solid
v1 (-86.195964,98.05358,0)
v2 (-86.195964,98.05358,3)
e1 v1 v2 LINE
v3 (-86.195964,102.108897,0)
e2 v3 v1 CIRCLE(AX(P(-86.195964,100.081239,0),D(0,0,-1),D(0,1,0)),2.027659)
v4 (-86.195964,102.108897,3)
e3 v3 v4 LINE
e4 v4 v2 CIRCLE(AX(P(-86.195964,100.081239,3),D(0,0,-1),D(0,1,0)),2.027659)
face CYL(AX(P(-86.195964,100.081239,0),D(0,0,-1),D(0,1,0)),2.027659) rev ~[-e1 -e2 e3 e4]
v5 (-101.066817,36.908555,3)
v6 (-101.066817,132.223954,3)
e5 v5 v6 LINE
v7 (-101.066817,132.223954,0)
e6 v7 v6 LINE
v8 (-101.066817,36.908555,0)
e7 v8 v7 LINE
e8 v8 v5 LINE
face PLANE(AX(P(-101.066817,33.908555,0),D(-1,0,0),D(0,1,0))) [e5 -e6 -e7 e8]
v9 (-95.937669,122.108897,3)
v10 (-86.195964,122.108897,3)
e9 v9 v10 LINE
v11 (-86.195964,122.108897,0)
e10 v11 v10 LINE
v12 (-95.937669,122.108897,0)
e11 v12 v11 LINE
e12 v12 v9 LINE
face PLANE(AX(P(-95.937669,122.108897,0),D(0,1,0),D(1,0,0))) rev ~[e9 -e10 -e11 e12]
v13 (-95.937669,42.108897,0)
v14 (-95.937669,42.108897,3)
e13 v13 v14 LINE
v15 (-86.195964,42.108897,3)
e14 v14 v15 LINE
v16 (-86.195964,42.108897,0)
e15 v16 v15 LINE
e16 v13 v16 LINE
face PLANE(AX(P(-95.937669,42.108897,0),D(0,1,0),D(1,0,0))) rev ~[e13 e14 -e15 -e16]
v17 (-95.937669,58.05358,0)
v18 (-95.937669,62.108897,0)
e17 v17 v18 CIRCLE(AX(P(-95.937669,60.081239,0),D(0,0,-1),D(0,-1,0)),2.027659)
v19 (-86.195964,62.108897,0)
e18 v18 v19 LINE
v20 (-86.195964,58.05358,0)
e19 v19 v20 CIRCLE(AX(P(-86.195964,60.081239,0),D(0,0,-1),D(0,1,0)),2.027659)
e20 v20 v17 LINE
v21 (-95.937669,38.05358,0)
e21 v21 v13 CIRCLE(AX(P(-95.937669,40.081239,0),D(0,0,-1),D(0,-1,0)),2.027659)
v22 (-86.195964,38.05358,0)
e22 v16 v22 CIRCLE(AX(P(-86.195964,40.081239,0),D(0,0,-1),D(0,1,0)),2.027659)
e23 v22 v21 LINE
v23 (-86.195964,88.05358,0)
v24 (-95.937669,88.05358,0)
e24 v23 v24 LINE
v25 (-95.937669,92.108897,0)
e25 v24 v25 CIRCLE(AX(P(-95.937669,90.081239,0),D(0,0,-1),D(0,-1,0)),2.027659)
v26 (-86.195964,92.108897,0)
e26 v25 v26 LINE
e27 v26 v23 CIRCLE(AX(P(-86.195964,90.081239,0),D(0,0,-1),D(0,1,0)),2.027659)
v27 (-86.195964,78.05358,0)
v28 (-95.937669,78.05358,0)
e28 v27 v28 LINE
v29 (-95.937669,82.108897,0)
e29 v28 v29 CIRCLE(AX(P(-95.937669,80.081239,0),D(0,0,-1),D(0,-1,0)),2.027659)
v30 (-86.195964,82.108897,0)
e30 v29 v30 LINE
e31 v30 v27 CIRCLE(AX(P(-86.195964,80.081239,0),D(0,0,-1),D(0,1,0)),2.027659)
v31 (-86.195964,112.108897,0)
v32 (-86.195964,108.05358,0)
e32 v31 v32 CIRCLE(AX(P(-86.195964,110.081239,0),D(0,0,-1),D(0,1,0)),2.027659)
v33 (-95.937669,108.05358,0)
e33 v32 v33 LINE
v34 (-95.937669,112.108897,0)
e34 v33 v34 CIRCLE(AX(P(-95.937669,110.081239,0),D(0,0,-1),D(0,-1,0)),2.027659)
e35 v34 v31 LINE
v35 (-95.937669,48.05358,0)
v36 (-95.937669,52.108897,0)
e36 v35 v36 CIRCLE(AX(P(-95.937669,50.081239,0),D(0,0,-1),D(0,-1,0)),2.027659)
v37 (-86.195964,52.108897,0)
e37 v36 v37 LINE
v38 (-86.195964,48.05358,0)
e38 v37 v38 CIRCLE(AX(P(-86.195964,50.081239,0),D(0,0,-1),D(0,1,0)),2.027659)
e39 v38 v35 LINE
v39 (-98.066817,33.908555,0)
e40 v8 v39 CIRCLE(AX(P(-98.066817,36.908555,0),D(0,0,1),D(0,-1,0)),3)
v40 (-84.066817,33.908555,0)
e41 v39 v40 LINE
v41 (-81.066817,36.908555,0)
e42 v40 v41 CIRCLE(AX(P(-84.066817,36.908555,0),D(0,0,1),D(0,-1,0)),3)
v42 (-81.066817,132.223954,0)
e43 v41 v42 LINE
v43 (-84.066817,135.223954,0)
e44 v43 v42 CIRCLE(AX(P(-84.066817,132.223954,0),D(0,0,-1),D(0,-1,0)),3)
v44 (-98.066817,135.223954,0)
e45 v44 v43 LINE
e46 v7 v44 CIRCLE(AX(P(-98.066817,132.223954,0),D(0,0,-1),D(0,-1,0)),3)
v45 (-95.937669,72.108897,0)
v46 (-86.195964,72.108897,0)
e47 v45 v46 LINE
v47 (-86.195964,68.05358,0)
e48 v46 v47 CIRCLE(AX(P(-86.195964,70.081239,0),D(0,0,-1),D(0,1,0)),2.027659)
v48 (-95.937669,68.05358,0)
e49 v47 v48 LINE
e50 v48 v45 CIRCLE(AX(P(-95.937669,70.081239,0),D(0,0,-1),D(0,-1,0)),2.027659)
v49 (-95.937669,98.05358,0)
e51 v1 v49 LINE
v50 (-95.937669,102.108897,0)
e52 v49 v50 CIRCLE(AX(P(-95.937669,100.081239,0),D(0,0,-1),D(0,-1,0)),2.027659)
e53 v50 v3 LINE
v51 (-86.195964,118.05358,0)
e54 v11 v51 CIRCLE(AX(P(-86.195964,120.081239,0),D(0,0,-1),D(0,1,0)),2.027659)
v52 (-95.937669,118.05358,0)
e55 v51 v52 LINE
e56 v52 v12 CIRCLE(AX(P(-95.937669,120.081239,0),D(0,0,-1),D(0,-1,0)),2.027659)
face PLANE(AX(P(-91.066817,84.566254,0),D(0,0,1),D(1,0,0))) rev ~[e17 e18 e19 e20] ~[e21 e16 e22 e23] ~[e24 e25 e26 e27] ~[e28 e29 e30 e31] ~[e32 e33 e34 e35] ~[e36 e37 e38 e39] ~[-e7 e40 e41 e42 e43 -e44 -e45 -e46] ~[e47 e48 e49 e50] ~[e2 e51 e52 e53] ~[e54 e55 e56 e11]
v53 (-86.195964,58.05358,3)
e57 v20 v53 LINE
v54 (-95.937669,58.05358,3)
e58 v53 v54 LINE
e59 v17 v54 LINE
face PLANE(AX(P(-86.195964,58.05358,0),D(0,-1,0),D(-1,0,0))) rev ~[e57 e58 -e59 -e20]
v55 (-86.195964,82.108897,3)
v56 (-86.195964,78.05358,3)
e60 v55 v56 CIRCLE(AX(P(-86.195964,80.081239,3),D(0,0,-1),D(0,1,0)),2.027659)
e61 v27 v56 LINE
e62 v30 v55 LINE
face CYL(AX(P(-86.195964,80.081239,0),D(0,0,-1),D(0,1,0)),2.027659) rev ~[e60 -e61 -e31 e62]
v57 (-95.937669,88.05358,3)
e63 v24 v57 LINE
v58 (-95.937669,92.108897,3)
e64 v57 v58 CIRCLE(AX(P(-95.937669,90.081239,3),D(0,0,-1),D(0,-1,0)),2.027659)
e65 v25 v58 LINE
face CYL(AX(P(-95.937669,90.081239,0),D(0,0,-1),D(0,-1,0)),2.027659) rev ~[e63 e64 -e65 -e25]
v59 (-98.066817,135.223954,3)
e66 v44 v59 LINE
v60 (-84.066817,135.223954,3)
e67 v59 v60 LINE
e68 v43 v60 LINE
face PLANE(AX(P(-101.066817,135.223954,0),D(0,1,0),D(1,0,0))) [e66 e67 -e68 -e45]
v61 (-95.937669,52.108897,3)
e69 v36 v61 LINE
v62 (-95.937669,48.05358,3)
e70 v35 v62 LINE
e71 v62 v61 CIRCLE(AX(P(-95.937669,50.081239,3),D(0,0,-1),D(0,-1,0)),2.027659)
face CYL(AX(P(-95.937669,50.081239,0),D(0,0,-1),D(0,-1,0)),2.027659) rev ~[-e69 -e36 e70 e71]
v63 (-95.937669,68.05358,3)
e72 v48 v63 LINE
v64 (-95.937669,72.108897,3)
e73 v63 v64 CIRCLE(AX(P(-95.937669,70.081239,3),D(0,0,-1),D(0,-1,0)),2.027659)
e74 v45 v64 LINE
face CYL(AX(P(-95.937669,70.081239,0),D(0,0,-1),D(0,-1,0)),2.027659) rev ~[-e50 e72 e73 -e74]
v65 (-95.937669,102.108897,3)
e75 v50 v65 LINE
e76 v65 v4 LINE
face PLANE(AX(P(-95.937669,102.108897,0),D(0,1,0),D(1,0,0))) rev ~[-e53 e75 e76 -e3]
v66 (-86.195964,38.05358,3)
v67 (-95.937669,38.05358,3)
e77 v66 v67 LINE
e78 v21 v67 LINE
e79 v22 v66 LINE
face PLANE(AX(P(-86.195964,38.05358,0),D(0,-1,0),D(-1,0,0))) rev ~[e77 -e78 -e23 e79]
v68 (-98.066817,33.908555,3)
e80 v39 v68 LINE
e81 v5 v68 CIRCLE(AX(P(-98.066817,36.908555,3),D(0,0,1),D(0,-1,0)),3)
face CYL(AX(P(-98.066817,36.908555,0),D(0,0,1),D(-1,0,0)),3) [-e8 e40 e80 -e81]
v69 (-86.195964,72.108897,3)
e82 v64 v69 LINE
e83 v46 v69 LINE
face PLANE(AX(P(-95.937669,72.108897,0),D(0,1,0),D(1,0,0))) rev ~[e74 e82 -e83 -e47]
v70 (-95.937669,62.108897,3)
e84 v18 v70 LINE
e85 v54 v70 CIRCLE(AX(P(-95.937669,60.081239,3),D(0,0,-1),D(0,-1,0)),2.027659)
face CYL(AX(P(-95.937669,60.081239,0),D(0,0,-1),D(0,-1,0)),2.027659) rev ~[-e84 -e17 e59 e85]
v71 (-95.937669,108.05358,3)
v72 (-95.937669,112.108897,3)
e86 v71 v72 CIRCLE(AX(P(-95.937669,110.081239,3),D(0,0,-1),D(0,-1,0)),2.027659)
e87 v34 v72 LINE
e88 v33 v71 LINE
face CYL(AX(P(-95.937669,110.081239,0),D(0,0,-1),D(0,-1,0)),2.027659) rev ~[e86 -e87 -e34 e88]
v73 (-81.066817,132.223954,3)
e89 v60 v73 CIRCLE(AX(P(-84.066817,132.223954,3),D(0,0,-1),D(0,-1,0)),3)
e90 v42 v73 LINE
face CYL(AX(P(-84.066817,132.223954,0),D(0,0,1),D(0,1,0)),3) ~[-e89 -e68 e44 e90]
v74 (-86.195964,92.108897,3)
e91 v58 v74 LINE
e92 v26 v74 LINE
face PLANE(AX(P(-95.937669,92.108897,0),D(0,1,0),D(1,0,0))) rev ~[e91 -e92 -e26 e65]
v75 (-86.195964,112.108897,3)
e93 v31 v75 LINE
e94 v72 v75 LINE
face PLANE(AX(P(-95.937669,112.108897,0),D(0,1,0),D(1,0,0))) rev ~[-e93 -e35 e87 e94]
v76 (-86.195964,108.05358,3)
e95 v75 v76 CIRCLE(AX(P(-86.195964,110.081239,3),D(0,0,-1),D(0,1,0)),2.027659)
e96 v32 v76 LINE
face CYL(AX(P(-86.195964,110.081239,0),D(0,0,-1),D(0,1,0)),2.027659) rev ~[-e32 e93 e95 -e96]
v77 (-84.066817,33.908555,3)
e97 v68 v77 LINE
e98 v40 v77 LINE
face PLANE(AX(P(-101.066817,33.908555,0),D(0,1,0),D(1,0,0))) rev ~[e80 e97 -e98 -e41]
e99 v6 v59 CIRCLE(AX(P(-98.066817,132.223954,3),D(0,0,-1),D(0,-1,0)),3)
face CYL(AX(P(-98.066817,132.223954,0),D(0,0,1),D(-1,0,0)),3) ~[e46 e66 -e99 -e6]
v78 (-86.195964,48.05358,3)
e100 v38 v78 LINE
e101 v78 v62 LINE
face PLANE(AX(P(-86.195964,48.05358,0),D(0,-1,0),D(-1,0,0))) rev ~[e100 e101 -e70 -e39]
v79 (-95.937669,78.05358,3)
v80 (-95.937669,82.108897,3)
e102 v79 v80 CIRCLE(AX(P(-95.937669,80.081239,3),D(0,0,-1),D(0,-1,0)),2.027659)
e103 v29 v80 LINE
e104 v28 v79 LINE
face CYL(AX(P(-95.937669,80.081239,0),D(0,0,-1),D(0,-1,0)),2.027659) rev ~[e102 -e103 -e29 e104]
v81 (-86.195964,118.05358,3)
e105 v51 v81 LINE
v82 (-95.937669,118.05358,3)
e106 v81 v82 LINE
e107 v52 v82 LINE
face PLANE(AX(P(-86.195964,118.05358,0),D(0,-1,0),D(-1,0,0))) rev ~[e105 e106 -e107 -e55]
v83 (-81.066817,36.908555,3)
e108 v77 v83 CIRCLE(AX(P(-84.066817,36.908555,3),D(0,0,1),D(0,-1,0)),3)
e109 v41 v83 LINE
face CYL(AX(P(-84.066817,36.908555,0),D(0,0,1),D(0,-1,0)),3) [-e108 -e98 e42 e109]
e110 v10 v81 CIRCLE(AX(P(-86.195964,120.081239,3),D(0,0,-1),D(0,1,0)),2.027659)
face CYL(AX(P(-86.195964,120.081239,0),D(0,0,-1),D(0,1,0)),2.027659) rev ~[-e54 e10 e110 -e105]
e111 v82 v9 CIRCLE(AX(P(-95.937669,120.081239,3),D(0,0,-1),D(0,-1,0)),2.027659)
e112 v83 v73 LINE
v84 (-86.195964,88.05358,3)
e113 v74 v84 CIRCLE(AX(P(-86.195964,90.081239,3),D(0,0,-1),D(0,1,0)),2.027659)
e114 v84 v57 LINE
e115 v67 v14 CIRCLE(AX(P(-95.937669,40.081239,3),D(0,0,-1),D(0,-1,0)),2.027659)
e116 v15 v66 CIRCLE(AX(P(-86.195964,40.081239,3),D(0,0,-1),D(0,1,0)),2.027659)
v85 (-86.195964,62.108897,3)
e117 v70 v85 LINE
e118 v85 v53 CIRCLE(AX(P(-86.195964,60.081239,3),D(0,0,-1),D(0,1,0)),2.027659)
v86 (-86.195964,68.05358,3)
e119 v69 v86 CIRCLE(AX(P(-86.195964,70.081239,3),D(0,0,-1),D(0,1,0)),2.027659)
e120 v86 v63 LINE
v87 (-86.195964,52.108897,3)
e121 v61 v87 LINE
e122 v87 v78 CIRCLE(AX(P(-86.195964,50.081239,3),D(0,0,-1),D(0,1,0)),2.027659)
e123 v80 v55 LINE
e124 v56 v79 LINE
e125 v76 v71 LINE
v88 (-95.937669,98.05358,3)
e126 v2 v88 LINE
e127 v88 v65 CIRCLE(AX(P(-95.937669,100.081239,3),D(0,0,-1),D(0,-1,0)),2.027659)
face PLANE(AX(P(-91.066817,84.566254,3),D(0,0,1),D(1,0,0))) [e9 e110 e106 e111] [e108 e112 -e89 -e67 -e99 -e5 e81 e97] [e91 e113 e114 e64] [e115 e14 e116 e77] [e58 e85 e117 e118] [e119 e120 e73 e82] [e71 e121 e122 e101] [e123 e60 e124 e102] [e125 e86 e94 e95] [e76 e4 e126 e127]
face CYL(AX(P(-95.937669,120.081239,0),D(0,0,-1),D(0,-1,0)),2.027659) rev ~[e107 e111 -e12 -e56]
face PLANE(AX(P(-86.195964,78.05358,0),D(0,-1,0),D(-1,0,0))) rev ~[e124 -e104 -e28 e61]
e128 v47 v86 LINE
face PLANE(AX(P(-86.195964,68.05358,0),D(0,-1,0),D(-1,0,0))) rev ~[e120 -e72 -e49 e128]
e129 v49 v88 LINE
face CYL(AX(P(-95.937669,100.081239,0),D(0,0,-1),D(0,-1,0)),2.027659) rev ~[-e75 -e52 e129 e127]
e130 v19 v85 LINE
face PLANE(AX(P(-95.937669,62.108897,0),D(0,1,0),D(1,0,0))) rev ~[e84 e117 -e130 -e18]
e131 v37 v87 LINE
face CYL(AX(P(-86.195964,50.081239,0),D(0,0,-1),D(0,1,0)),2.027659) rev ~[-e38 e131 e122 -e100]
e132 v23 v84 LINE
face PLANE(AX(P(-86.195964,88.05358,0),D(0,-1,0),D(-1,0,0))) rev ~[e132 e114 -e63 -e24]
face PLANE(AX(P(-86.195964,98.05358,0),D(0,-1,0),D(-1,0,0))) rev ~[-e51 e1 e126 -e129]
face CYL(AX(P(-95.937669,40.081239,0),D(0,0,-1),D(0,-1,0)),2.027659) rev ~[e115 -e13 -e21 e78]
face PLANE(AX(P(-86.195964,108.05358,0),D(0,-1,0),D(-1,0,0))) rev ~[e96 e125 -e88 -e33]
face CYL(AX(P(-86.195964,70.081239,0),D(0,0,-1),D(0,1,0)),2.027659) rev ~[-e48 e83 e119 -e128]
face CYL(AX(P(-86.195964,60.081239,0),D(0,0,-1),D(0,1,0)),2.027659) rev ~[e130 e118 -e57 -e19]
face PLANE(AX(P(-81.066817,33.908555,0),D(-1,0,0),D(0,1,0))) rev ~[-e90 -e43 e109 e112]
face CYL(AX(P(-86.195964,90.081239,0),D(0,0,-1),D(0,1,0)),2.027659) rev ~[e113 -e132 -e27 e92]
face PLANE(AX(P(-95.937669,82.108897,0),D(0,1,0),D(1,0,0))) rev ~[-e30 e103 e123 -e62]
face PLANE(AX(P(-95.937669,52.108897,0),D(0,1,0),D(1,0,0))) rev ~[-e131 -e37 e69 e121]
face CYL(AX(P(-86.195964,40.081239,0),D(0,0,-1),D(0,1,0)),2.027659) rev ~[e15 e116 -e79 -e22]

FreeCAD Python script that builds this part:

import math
import FreeCAD as App
import Part
import Sketcher
from FreeCAD import Vector


def edges_at(feature, points):
    """Names of the edges that pass closest to the given points."""
    edges = feature.Shape.Edges
    near = lambda p: min(range(len(edges)), key=lambda i: edges[i].distToShape(Part.Vertex(*p))[0])
    return sorted({f"Edge{near(p) + 1}" for p in points})

doc = App.newDocument("Part")
body = doc.addObject("PartDesign::Body", "Body")

# Sketch on XY plane
sketch1 = body.newObject("Sketcher::SketchObject", "Sketch")
sketch1.AttachmentSupport = (doc.getObject("XY_Plane"), [""])
sketch1.MapMode = "FlatFace"
sketch1.addGeometry([
    Part.LineSegment(Vector(-101.066817, 135.223954, 0), Vector(-101.066817, 33.908555, 0)),  # 0
    Part.LineSegment(Vector(-101.066817, 33.908555, 0), Vector(-81.066817, 33.908555, 0)),  # 1
    Part.LineSegment(Vector(-81.066817, 33.908555, 0), Vector(-81.066817, 135.223954, 0)),  # 2
    Part.LineSegment(Vector(-81.066817, 135.223954, 0), Vector(-101.066817, 135.223954, 0)),  # 3
    Part.ArcOfCircle(Part.Circle(Vector(-86.195964, 40.081239, 0), Vector(0, 0, 1), 2.027659), math.radians(-90), math.radians(90)),  # 4
    Part.LineSegment(Vector(-86.195964, 38.05358, 0), Vector(-95.937669, 38.05358, 0)),  # 5
    Part.ArcOfCircle(Part.Circle(Vector(-95.937669, 40.081239, 0), Vector(0, 0, 1), 2.027659), math.radians(90), math.radians(270)),  # 6
    Part.LineSegment(Vector(-95.937669, 42.108897, 0), Vector(-86.195964, 42.108897, 0)),  # 7
    Part.ArcOfCircle(Part.Circle(Vector(-86.195964, 50.081239, 0), Vector(0, 0, 1), 2.027659), math.radians(-90), math.radians(90)),  # 8
    Part.LineSegment(Vector(-86.195964, 48.05358, 0), Vector(-95.937669, 48.05358, 0)),  # 9
    Part.ArcOfCircle(Part.Circle(Vector(-95.937669, 50.081239, 0), Vector(0, 0, 1), 2.027659), math.radians(90), math.radians(270)),  # 10
    Part.LineSegment(Vector(-95.937669, 52.108897, 0), Vector(-86.195964, 52.108897, 0)),  # 11
    Part.ArcOfCircle(Part.Circle(Vector(-86.195964, 60.081239, 0), Vector(0, 0, 1), 2.027659), math.radians(-90), math.radians(90)),  # 12
    Part.LineSegment(Vector(-86.195964, 58.05358, 0), Vector(-95.937669, 58.05358, 0)),  # 13
    Part.ArcOfCircle(Part.Circle(Vector(-95.937669, 60.081239, 0), Vector(0, 0, 1), 2.027659), math.radians(90), math.radians(270)),  # 14
    Part.LineSegment(Vector(-95.937669, 62.108897, 0), Vector(-86.195964, 62.108897, 0)),  # 15
    Part.ArcOfCircle(Part.Circle(Vector(-86.195964, 70.081239, 0), Vector(0, 0, 1), 2.027659), math.radians(-90), math.radians(90)),  # 16
    Part.LineSegment(Vector(-86.195964, 68.05358, 0), Vector(-95.937669, 68.05358, 0)),  # 17
    Part.ArcOfCircle(Part.Circle(Vector(-95.937669, 70.081239, 0), Vector(0, 0, 1), 2.027659), math.radians(90), math.radians(270)),  # 18
    Part.LineSegment(Vector(-95.937669, 72.108897, 0), Vector(-86.195964, 72.108897, 0)),  # 19
    Part.ArcOfCircle(Part.Circle(Vector(-86.195964, 80.081239, 0), Vector(0, 0, 1), 2.027659), math.radians(-90), math.radians(90)),  # 20
    Part.LineSegment(Vector(-86.195964, 78.05358, 0), Vector(-95.937669, 78.05358, 0)),  # 21
    Part.ArcOfCircle(Part.Circle(Vector(-95.937669, 80.081239, 0), Vector(0, 0, 1), 2.027659), math.radians(90), math.radians(270)),  # 22
    Part.LineSegment(Vector(-95.937669, 82.108897, 0), Vector(-86.195964, 82.108897, 0)),  # 23
    Part.ArcOfCircle(Part.Circle(Vector(-86.195964, 90.081239, 0), Vector(0, 0, 1), 2.027659), math.radians(-90), math.radians(90)),  # 24
    Part.LineSegment(Vector(-86.195964, 88.05358, 0), Vector(-95.937669, 88.05358, 0)),  # 25
    Part.ArcOfCircle(Part.Circle(Vector(-95.937669, 90.081239, 0), Vector(0, 0, 1), 2.027659), math.radians(90), math.radians(270)),  # 26
    Part.LineSegment(Vector(-95.937669, 92.108897, 0), Vector(-86.195964, 92.108897, 0)),  # 27
    Part.ArcOfCircle(Part.Circle(Vector(-86.195964, 100.081239, 0), Vector(0, 0, 1), 2.027659), math.radians(-90), math.radians(90)),  # 28
    Part.LineSegment(Vector(-86.195964, 98.05358, 0), Vector(-95.937669, 98.05358, 0)),  # 29
    Part.ArcOfCircle(Part.Circle(Vector(-95.937669, 100.081239, 0), Vector(0, 0, 1), 2.027659), math.radians(90), math.radians(270)),  # 30
    Part.LineSegment(Vector(-95.937669, 102.108897, 0), Vector(-86.195964, 102.108897, 0)),  # 31
    Part.ArcOfCircle(Part.Circle(Vector(-86.195964, 110.081239, 0), Vector(0, 0, 1), 2.027659), math.radians(-90), math.radians(90)),  # 32
    Part.LineSegment(Vector(-86.195964, 108.05358, 0), Vector(-95.937669, 108.05358, 0)),  # 33
    Part.ArcOfCircle(Part.Circle(Vector(-95.937669, 110.081239, 0), Vector(0, 0, 1), 2.027659), math.radians(90), math.radians(270)),  # 34
    Part.LineSegment(Vector(-95.937669, 112.108897, 0), Vector(-86.195964, 112.108897, 0)),  # 35
    Part.ArcOfCircle(Part.Circle(Vector(-86.195964, 120.081239, 0), Vector(0, 0, 1), 2.027659), math.radians(-90), math.radians(90)),  # 36
    Part.LineSegment(Vector(-86.195964, 118.05358, 0), Vector(-95.937669, 118.05358, 0)),  # 37
    Part.ArcOfCircle(Part.Circle(Vector(-95.937669, 120.081239, 0), Vector(0, 0, 1), 2.027659), math.radians(90), math.radians(270)),  # 38
    Part.LineSegment(Vector(-95.937669, 122.108897, 0), Vector(-86.195964, 122.108897, 0)),  # 39
], False)
sketch1.addConstraint([
    Sketcher.Constraint("Coincident", 0, 2, 1, 1),
    Sketcher.Constraint("Coincident", 1, 2, 2, 1),
    Sketcher.Constraint("Coincident", 2, 2, 3, 1),
    Sketcher.Constraint("Coincident", 3, 2, 0, 1),
    Sketcher.Constraint("Tangent", 4, 1, 5, 1),
    Sketcher.Constraint("Tangent", 5, 2, 6, 2),
    Sketcher.Constraint("Tangent", 6, 1, 7, 1),
    Sketcher.Constraint("Tangent", 7, 2, 4, 2),
    Sketcher.Constraint("Tangent", 8, 1, 9, 1),
    Sketcher.Constraint("Tangent", 9, 2, 10, 2),
    Sketcher.Constraint("Tangent", 10, 1, 11, 1),
    Sketcher.Constraint("Tangent", 11, 2, 8, 2),
    Sketcher.Constraint("Tangent", 12, 1, 13, 1),
    Sketcher.Constraint("Tangent", 13, 2, 14, 2),
    Sketcher.Constraint("Tangent", 14, 1, 15, 1),
    Sketcher.Constraint("Tangent", 15, 2, 12, 2),
    Sketcher.Constraint("Tangent", 16, 1, 17, 1),
    Sketcher.Constraint("Tangent", 17, 2, 18, 2),
    Sketcher.Constraint("Tangent", 18, 1, 19, 1),
    Sketcher.Constraint("Tangent", 19, 2, 16, 2),
    Sketcher.Constraint("Tangent", 20, 1, 21, 1),
    Sketcher.Constraint("Tangent", 21, 2, 22, 2),
    Sketcher.Constraint("Tangent", 22, 1, 23, 1),
    Sketcher.Constraint("Tangent", 23, 2, 20, 2),
    Sketcher.Constraint("Tangent", 24, 1, 25, 1),
    Sketcher.Constraint("Tangent", 25, 2, 26, 2),
    Sketcher.Constraint("Tangent", 26, 1, 27, 1),
    Sketcher.Constraint("Tangent", 27, 2, 24, 2),
    Sketcher.Constraint("Tangent", 28, 1, 29, 1),
    Sketcher.Constraint("Tangent", 29, 2, 30, 2),
    Sketcher.Constraint("Tangent", 30, 1, 31, 1),
    Sketcher.Constraint("Tangent", 31, 2, 28, 2),
    Sketcher.Constraint("Tangent", 32, 1, 33, 1),
    Sketcher.Constraint("Tangent", 33, 2, 34, 2),
    Sketcher.Constraint("Tangent", 34, 1, 35, 1),
    Sketcher.Constraint("Tangent", 35, 2, 32, 2),
    Sketcher.Constraint("Tangent", 36, 1, 37, 1),
    Sketcher.Constraint("Tangent", 37, 2, 38, 2),
    Sketcher.Constraint("Tangent", 38, 1, 39, 1),
    Sketcher.Constraint("Tangent", 39, 2, 36, 2),
    Sketcher.Constraint("Vertical", 0),
    Sketcher.Constraint("Horizontal", 1),
    Sketcher.Constraint("Vertical", 2),
    Sketcher.Constraint("Horizontal", 3),
    Sketcher.Constraint("Horizontal", 5),
    Sketcher.Constraint("Horizontal", 7),
    Sketcher.Constraint("Horizontal", 9),
    Sketcher.Constraint("Horizontal", 11),
    Sketcher.Constraint("Horizontal", 13),
    Sketcher.Constraint("Horizontal", 15),
    Sketcher.Constraint("Horizontal", 17),
    Sketcher.Constraint("Horizontal", 19),
    Sketcher.Constraint("Horizontal", 21),
    Sketcher.Constraint("Horizontal", 23),
    Sketcher.Constraint("Horizontal", 25),
    Sketcher.Constraint("Horizontal", 27),
    Sketcher.Constraint("Horizontal", 29),
    Sketcher.Constraint("Horizontal", 31),
    Sketcher.Constraint("Horizontal", 33),
    Sketcher.Constraint("Horizontal", 35),
    Sketcher.Constraint("Horizontal", 37),
    Sketcher.Constraint("Horizontal", 39),
    Sketcher.Constraint("Equal", 6, 8),
    Sketcher.Constraint("Equal", 10, 12),
    Sketcher.Constraint("Equal", 14, 16),
    Sketcher.Constraint("Equal", 18, 20),
    Sketcher.Constraint("Equal", 22, 24),
    Sketcher.Constraint("Equal", 26, 28),
    Sketcher.Constraint("Equal", 30, 32),
    Sketcher.Constraint("Equal", 34, 36),
    Sketcher.Constraint("Vertical", 4, 3, 8, 3),
    Sketcher.Constraint("Vertical", 6, 3, 10, 3),
    Sketcher.Constraint("Vertical", 8, 3, 12, 3),
    Sketcher.Constraint("Vertical", 10, 3, 14, 3),
    Sketcher.Constraint("Vertical", 12, 3, 16, 3),
    Sketcher.Constraint("Vertical", 14, 3, 18, 3),
    Sketcher.Constraint("Vertical", 16, 3, 20, 3),
    Sketcher.Constraint("Vertical", 18, 3, 22, 3),
    Sketcher.Constraint("Vertical", 20, 3, 24, 3),
    Sketcher.Constraint("Vertical", 22, 3, 26, 3),
    Sketcher.Constraint("Vertical", 24, 3, 28, 3),
    Sketcher.Constraint("Vertical", 26, 3, 30, 3),
    Sketcher.Constraint("Vertical", 28, 3, 32, 3),
    Sketcher.Constraint("Vertical", 30, 3, 34, 3),
    Sketcher.Constraint("Vertical", 32, 3, 36, 3),
    Sketcher.Constraint("Vertical", 34, 3, 38, 3),
    Sketcher.Constraint("DistanceX", 1, 1, 1, 2, 20.0),
    Sketcher.Constraint("DistanceY", 4, 3, 8, 3, 10.0),
    Sketcher.Constraint("DistanceY", 8, 3, 12, 3, 10.0),
    Sketcher.Constraint("DistanceY", 12, 3, 16, 3, 10.0),
    Sketcher.Constraint("DistanceY", 16, 3, 20, 3, 10.0),
    Sketcher.Constraint("DistanceY", 20, 3, 24, 3, 10.0),
    Sketcher.Constraint("DistanceY", 24, 3, 28, 3, 10.0),
    Sketcher.Constraint("DistanceY", 28, 3, 32, 3, 10.0),
    Sketcher.Constraint("DistanceY", 32, 3, 36, 3, 10.0),
    Sketcher.Constraint("Radius", 4, 2.027659),
    Sketcher.Constraint("DistanceY", 0, 2, 0, 1, 101.315399),
    Sketcher.Constraint("DistanceX", 5, 2, 5, 1, 9.741705),
    Sketcher.Constraint("DistanceY", -1, 1, 4, 3, 40.081239),
    Sketcher.Constraint("DistanceX", 6, 3, -1, 1, 95.937669),
    Sketcher.Constraint("DistanceX", 0, 2, -1, 1, 101.066817),
    Sketcher.Constraint("DistanceY", -1, 1, 0, 2, 33.908555),
])
pad1 = body.newObject("PartDesign::Pad", "Pad")
pad1.Profile = sketch1
pad1.Length = 3
doc.recompute()

fillet = body.newObject("PartDesign::Fillet", "Fillet")
fillet.Base = (pad1, edges_at(pad1, [
    (-101.067, 135.224, 1.5),
    (-81.067, 135.224, 1.5),
    (-81.067, 33.909, 1.5),
    (-101.067, 33.909, 1.5),
]))
fillet.Radius = 3

doc.recompute()
